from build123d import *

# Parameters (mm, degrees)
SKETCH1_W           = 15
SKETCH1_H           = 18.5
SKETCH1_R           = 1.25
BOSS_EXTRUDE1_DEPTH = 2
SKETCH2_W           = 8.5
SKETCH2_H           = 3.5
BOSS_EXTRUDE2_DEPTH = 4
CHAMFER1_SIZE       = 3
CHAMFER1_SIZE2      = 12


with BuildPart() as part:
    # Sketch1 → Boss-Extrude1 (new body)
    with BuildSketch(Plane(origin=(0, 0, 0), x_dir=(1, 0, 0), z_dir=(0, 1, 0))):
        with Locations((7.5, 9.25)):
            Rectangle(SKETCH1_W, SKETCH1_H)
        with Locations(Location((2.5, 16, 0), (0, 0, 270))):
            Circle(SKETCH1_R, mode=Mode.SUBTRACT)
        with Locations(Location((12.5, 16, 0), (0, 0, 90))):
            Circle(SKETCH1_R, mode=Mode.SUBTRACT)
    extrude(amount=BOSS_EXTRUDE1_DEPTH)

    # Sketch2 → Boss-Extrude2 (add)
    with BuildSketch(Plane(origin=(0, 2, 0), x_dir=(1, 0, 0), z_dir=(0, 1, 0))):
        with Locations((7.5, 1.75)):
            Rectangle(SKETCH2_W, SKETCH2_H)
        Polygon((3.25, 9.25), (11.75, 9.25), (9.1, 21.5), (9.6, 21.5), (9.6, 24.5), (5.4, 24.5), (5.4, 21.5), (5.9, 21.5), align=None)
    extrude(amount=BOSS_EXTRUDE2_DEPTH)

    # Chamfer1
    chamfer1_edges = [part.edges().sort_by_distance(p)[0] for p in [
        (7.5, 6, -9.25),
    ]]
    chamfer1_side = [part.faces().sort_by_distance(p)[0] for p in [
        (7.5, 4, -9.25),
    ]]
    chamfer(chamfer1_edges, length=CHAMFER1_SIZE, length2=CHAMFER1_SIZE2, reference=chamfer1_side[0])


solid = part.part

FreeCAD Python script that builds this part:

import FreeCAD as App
import Part
import Sketcher
Q = App.Units.Quantity


def edges_at(feature, points):
    """Names of the edges that pass closest to the given points."""
    edges = feature.Shape.Edges
    near = lambda p: min(range(len(edges)), key=lambda i: edges[i].distToShape(Part.Vertex(*p))[0])
    return sorted({f"Edge{near(p) + 1}" for p in points})


def add_polygon(sketch, points):
    """Adds a closed chain of lines whose ends are joined by coincident constraints."""
    first, n = sketch.GeometryCount, len(points)
    for a, b in zip(points, points[1:] + points[:1]):
        sketch.addGeometry(Part.LineSegment(App.Vector(*a, 0), App.Vector(*b, 0)), False)
    for i in range(n):
        sketch.addConstraint(Sketcher.Constraint("Coincident", first + i, 2, first + (i + 1) % n, 1))

doc = App.newDocument("Part")
params = doc.addObject("Spreadsheet::Sheet", "Params")
for row, (alias, value) in enumerate([
    ("sketch1_diameter", "2.5 mm"),
    ("sketch1_width", "15 mm"),
    ("sketch1_height", "18.5 mm"),
    ("pad1_length", "2 mm"),
    ("sketch2_height", "3 mm"),
    ("sketch2_width", "8.5 mm"),
    ("sketch2_width2", "0.5 mm"),
    ("sketch2_width3", "4.2 mm"),
    ("sketch2_height2", "3.5 mm"),
    ("pad2_length", "4 mm"),
    ("chamfer_size", "3 mm"),
    ("chamfer_size2", "12 mm"),
], start=1):
    params.set(f"A{row}", alias)
    params.set(f"B{row}", "=" + value)
    params.setAlias(f"B{row}", alias)

body = doc.addObject("PartDesign::Body", "Body")

sketch1 = body.newObject("Sketcher::SketchObject", "Sketch")
sketch1.AttachmentSupport = (doc.getObject("XZ_Plane"), [""])
sketch1.MapMode = "FlatFace"
add_polygon(sketch1, [(0, -18.5), (0, 0), (15, 0), (15, -18.5)])
sketch1.addGeometry(Part.Circle(App.Vector(2.5, -16, 0), App.Vector(0, 0, 1), 1.25), False)
sketch1.addGeometry(Part.Circle(App.Vector(12.5, -16, 0), App.Vector(0, 0, 1), 1.25), False)
sketch1.addConstraint([
    Sketcher.Constraint("Vertical", 0),
    Sketcher.Constraint("Horizontal", 1),
    Sketcher.Constraint("Vertical", 2),
    Sketcher.Constraint("Horizontal", 3),
    Sketcher.Constraint("Coincident", 0, 2, -1, 1),
    Sketcher.Constraint("Equal", 4, 5),
    Sketcher.Constraint("Horizontal", 4, 3, 5, 3),
    Sketcher.Constraint("Diameter", 4, Q("2.5 mm")),
    Sketcher.Constraint("DistanceX", 1, 1, 1, 2, Q("15 mm")),
    Sketcher.Constraint("DistanceY", 0, 1, 0, 2, Q("18.5 mm")),
    Sketcher.Constraint("DistanceY", 4, 3, -1, 1, Q("16 mm")),
    Sketcher.Constraint("DistanceX", 4, 3, 5, 3, Q("10 mm")),
    Sketcher.Constraint("DistanceX", -1, 1, 4, 3, Q("2.5 mm")),
])
sketch1.setExpression("Constraints[11]", "Params.sketch1_diameter")
sketch1.setExpression("Constraints[12]", "Params.sketch1_width")
sketch1.setExpression("Constraints[13]", "Params.sketch1_height")
pad1 = body.newObject("PartDesign::Pad", "Pad")
pad1.Profile = sketch1
pad1.setExpression("Length", "Params.pad1_length")
pad1.Reversed = True

sketch2 = body.newObject("Sketcher::SketchObject", "Sketch001")
sketch2.AttachmentSupport = (doc.getObject("XZ_Plane"), [""])
sketch2.MapMode = "FlatFace"
sketch2.AttachmentOffset = App.Placement(App.Vector(0, 0, -2), App.Rotation())
add_polygon(sketch2, [(3.25, -3.5), (3.25, 0), (11.75, 0), (11.75, -3.5)])
add_polygon(sketch2, [(3.25, -9.25), (11.75, -9.25), (9.1, -21.5), (9.6, -21.5), (9.6, -24.5), (5.4, -24.5), (5.4, -21.5), (5.9, -21.5)])
sketch2.addConstraint([
    Sketcher.Constraint("Vertical", 0),
    Sketcher.Constraint("Horizontal", 1),
    Sketcher.Constraint("Vertical", 2),
    Sketcher.Constraint("Horizontal", 3),
    Sketcher.Constraint("Horizontal", 4),
    Sketcher.Constraint("Horizontal", 6),
    Sketcher.Constraint("Vertical", 7),
    Sketcher.Constraint("Horizontal", 8),
    Sketcher.Constraint("Vertical", 9),
    Sketcher.Constraint("Horizontal", 10),
    Sketcher.Constraint("PointOnObject", 0, 2, -1),
    Sketcher.Constraint("Horizontal", 6, 2, 9, 2),
    Sketcher.Constraint("Vertical", 2, 2, 4, 2),
    Sketcher.Constraint("Vertical", 3, 2, 11, 2),
    Sketcher.Constraint("Equal", 6, 10),
    Sketcher.Constraint("Equal", 5, 11),
    Sketcher.Constraint("DistanceY", 7, 2, 7, 1, Q("3 mm")),
    Sketcher.Constraint("DistanceX", 1, 1, 1, 2, Q("8.5 mm")),
    Sketcher.Constraint("DistanceX", 6, 1, 6, 2, Q("0.5 mm")),
    Sketcher.Constraint("DistanceX", 8, 2, 8, 1, Q("4.2 mm")),
    Sketcher.Constraint("DistanceY", 0, 1, 0, 2, Q("3.5 mm")),
    Sketcher.Constraint("DistanceY", 5, 2, 2, 2, Q("18 mm")),
    Sketcher.Constraint("DistanceX", -1, 1, 5, 2, Q("9.1 mm")),
    Sketcher.Constraint("DistanceY", 4, 2, -1, 1, Q("9.25 mm")),
])
sketch2.setExpression("Constraints[28]", "Params.sketch2_height")
sketch2.setExpression("Constraints[29]", "Params.sketch2_width")
sketch2.setExpression("Constraints[30]", "Params.sketch2_width2")
sketch2.setExpression("Constraints[31]", "Params.sketch2_width3")
sketch2.setExpression("Constraints[32]", "Params.sketch2_height2")
pad2 = body.newObject("PartDesign::Pad", "Pad001")
pad2.Profile = sketch2
pad2.setExpression("Length", "Params.pad2_length")
pad2.Reversed = True
doc.recompute()

chamfer = body.newObject("PartDesign::Chamfer", "Chamfer")
chamfer.Base = (pad2, edges_at(pad2, [(7.5, 6, -9.25)]))
chamfer.ChamferType = "Two distances"
chamfer.setExpression("Size", "Params.chamfer_size")
chamfer.setExpression("Size2", "Params.chamfer_size2")

doc.recompute()
